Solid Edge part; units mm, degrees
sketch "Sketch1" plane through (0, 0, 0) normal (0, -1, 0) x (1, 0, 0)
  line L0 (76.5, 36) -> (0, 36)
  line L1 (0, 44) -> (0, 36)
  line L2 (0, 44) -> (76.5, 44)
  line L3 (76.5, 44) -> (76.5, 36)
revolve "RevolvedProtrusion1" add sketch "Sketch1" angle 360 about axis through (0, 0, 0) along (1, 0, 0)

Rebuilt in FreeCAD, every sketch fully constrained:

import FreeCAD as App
import Part
import Sketcher

doc = App.newDocument("Part")
body = doc.addObject("PartDesign::Body", "Body")

# Sketch on XZ plane
sketch1 = body.newObject("Sketcher::SketchObject", "Sketch")
sketch1.AttachmentSupport = (doc.getObject("XZ_Plane"), [""])
sketch1.MapMode = "FlatFace"
sketch1.addGeometry([
    Part.LineSegment(App.Vector(0, 36, 0), App.Vector(76, 36, 0)),
    Part.LineSegment(App.Vector(76, 36, 0), App.Vector(76, 44, 0)),
    Part.LineSegment(App.Vector(76, 44, 0), App.Vector(0, 44, 0)),
    Part.LineSegment(App.Vector(0, 44, 0), App.Vector(0, 36, 0)),
], False)
sketch1.addConstraint([
    Sketcher.Constraint("Coincident", 0, 2, 1, 1),
    Sketcher.Constraint("Coincident", 1, 2, 2, 1),
    Sketcher.Constraint("Coincident", 2, 2, 3, 1),
    Sketcher.Constraint("Coincident", 3, 2, 0, 1),
    Sketcher.Constraint("Horizontal", 0),
    Sketcher.Constraint("Vertical", 1),
    Sketcher.Constraint("Horizontal", 2),
    Sketcher.Constraint("Vertical", 3),
    Sketcher.Constraint("PointOnObject", 2, 2, -2),
    Sketcher.Constraint("DistanceY", 1, 1, 1, 2, 8.0),
    Sketcher.Constraint("DistanceX", 0, 1, 0, 2, 76.5),
    Sketcher.Constraint("DistanceY", -1, 1, 0, 2, 36.0),
])
revolution = body.newObject("PartDesign::Revolution", "Revolution")
revolution.Profile = sketch1
revolution.ReferenceAxis = (sketch1, ["H_Axis"])
revolution.Angle = 360

doc.recompute()
